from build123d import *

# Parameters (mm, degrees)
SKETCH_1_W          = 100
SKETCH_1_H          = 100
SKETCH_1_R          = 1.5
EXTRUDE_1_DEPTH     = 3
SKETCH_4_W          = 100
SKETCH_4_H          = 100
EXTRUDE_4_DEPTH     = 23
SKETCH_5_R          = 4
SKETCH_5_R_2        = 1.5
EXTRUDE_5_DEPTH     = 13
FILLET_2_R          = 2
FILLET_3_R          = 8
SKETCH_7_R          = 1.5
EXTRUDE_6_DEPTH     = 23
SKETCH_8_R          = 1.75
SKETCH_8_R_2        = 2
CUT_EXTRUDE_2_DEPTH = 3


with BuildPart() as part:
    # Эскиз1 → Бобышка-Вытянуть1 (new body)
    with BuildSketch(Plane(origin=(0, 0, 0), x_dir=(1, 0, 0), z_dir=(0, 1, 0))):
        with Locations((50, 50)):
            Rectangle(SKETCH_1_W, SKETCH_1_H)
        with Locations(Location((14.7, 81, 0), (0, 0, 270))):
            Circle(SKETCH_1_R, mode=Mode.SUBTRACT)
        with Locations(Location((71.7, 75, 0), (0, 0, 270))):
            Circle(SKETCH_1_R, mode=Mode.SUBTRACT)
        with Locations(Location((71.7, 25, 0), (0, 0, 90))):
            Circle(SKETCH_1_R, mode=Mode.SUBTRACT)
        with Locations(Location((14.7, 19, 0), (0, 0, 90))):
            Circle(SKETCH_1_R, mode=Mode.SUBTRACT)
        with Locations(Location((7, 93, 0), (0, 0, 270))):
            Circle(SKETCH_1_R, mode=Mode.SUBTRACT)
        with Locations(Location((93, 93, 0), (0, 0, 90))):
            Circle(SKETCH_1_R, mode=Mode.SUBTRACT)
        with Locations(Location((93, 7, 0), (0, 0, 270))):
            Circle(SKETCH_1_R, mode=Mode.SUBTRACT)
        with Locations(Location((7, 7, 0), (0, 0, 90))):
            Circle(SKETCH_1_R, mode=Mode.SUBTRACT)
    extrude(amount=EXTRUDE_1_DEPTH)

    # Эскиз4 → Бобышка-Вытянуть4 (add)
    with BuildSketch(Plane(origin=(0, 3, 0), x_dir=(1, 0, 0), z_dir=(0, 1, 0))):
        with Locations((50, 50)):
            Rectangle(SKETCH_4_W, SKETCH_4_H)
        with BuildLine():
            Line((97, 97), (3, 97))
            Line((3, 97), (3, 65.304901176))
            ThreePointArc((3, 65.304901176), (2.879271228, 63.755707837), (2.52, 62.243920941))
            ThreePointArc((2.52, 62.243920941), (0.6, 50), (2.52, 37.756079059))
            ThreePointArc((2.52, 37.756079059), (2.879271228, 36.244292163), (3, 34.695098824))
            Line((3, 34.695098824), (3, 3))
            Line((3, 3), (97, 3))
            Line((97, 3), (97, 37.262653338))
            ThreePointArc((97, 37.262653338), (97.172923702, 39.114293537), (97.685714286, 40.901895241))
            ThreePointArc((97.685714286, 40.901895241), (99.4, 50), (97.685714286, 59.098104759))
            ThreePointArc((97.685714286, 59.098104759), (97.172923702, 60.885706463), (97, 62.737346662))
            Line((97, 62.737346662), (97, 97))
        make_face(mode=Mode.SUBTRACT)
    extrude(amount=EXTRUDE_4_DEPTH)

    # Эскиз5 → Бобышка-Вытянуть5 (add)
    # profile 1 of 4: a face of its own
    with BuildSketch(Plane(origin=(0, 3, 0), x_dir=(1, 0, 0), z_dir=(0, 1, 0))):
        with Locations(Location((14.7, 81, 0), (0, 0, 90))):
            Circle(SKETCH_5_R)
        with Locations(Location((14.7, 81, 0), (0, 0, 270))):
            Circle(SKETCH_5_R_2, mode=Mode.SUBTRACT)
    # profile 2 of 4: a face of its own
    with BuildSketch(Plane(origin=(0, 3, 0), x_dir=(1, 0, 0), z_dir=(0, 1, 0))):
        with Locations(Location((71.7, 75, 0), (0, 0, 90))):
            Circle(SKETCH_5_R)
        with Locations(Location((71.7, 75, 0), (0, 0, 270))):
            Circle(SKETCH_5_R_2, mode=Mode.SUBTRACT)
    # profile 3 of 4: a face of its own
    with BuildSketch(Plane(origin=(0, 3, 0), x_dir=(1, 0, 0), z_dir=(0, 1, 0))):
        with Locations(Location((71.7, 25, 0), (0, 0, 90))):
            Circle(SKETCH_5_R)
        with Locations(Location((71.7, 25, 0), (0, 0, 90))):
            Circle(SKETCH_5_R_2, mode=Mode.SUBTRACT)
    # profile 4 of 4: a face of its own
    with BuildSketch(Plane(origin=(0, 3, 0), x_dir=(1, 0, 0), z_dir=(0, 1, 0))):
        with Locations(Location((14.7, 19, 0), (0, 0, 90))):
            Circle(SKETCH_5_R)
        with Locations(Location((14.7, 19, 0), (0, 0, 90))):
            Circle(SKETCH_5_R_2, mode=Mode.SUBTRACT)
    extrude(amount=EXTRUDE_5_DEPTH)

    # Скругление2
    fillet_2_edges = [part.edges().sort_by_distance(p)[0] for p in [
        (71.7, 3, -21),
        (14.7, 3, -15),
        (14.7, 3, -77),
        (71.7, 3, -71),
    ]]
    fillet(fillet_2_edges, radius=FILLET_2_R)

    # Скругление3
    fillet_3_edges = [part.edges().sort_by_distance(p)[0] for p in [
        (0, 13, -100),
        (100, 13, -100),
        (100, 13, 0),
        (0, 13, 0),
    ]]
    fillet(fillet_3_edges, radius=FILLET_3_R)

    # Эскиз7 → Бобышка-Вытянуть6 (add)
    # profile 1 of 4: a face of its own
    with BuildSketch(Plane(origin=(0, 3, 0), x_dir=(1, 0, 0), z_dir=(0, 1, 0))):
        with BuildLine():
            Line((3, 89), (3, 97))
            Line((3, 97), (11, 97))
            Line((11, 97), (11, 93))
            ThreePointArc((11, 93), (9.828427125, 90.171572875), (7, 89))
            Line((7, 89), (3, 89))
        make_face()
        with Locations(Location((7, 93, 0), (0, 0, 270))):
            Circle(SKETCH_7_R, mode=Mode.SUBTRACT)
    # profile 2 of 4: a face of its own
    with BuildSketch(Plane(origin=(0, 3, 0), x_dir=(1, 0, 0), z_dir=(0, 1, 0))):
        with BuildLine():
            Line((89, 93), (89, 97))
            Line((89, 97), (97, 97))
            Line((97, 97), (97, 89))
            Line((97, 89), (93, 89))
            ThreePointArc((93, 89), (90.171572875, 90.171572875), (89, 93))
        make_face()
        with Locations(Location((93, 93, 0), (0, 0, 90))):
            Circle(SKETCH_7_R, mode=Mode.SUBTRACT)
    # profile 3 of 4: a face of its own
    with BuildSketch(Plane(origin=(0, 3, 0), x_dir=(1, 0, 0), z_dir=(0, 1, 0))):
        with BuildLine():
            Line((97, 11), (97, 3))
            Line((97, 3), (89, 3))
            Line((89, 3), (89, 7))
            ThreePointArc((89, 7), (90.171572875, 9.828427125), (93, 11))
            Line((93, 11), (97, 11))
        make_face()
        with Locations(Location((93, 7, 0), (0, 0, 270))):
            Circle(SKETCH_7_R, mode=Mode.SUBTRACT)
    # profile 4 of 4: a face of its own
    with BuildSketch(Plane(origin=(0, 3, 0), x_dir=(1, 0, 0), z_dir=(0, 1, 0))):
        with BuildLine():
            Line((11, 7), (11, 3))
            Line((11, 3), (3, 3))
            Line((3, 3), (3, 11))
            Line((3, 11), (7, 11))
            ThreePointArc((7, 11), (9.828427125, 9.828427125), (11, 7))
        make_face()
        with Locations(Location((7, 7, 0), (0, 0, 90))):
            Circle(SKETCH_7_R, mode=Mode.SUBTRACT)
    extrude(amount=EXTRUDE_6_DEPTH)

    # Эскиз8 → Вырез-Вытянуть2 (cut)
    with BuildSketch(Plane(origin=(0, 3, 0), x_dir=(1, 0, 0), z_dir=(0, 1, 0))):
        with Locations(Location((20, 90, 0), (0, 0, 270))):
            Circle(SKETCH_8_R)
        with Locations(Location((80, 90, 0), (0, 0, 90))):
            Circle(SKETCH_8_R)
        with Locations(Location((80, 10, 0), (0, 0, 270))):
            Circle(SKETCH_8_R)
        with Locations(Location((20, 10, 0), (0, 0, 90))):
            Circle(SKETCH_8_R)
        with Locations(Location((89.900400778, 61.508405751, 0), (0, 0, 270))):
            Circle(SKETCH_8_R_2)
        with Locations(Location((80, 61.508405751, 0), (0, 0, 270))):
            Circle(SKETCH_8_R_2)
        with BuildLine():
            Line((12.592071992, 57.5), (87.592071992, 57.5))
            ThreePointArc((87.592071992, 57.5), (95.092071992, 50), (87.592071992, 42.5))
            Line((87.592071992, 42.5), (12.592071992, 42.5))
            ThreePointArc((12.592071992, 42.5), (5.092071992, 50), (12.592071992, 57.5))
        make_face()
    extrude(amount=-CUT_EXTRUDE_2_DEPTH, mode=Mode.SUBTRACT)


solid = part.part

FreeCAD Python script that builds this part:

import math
import FreeCAD as App
import Part
import Sketcher

V = App.Vector
Q = App.Units.Quantity


def edges_at(feature, points):
    """Names of the edges that pass closest to the given points."""
    edges = feature.Shape.Edges
    near = lambda p: min(range(len(edges)), key=lambda i: edges[i].distToShape(Part.Vertex(*p))[0])
    return sorted({f"Edge{near(p) + 1}" for p in points})


def add_polygon(sketch, points):
    """Adds a closed chain of lines whose ends are joined by coincident constraints."""
    first, n = sketch.GeometryCount, len(points)
    for a, b in zip(points, points[1:] + points[:1]):
        sketch.addGeometry(Part.LineSegment(App.Vector(*a, 0), App.Vector(*b, 0)), False)
    for i in range(n):
        sketch.addConstraint(Sketcher.Constraint("Coincident", first + i, 2, first + (i + 1) % n, 1))

doc = App.newDocument("Part")
body = doc.addObject("PartDesign::Body", "Body")

sketch1 = doc.addObject("Sketcher::SketchObject", "Sketch")
body.addObject(sketch1)
sketch1.AttachmentSupport = (doc.XZ_Plane, [""])
sketch1.MapMode = "FlatFace"
add_polygon(sketch1, [(0, -100), (0, 0), (100, 0), (100, -100)])
sketch1.addGeometry(Part.Circle(V(7, -7, 0), V(0, 0, 1), 1.5), False)
sketch1.addGeometry(Part.Circle(V(14.7, -19, 0), V(0, 0, 1), 1.5), False)
sketch1.addGeometry(Part.Circle(V(71.7, -25, 0), V(0, 0, 1), 1.5), False)
sketch1.addGeometry(Part.Circle(V(93, -7, 0), V(0, 0, 1), 1.5), False)
sketch1.addGeometry(Part.Circle(V(14.7, -81, 0), V(0, 0, 1), 1.5), False)
sketch1.addGeometry(Part.Circle(V(7, -93, 0), V(0, 0, 1), 1.5), False)
sketch1.addGeometry(Part.Circle(V(71.7, -75, 0), V(0, 0, 1), 1.5), False)
sketch1.addGeometry(Part.Circle(V(93, -93, 0), V(0, 0, 1), 1.5), False)
sketch1.addConstraint([
    Sketcher.Constraint("Vertical", 0),
    Sketcher.Constraint("Horizontal", 1),
    Sketcher.Constraint("Vertical", 2),
    Sketcher.Constraint("Horizontal", 3),
    Sketcher.Constraint("Coincident", 0, 2, -1, 1),
    Sketcher.Constraint("Equal", 4, 5),
    Sketcher.Constraint("Equal", 5, 6),
    Sketcher.Constraint("Equal", 6, 7),
    Sketcher.Constraint("Equal", 7, 8),
    Sketcher.Constraint("Equal", 8, 9),
    Sketcher.Constraint("Equal", 9, 10),
    Sketcher.Constraint("Equal", 10, 11),
    Sketcher.Constraint("Horizontal", 4, 3, 7, 3),
    Sketcher.Constraint("Horizontal", 9, 3, 11, 3),
    Sketcher.Constraint("Vertical", 5, 3, 8, 3),
    Sketcher.Constraint("Vertical", 4, 3, 9, 3),
    Sketcher.Constraint("Vertical", 6, 3, 10, 3),
    Sketcher.Constraint("Vertical", 7, 3, 11, 3),
    Sketcher.Constraint("Equal", 3, 0),
    Sketcher.Constraint("Diameter", 4, Q("3 mm")),
    Sketcher.Constraint("DistanceX", 1, 1, 1, 2, Q("100 mm")),
    Sketcher.Constraint("DistanceX", -1, 1, 4, 3, Q("7 mm")),
    Sketcher.Constraint("DistanceY", 4, 3, -1, 1, Q("7 mm")),
    Sketcher.Constraint("DistanceY", 5, 3, -1, 1, Q("19 mm")),
    Sketcher.Constraint("DistanceY", 6, 3, -1, 1, Q("25 mm")),
    Sketcher.Constraint("DistanceX", -1, 1, 7, 3, Q("93 mm")),
    Sketcher.Constraint("DistanceY", 8, 3, -1, 1, Q("81 mm")),
    Sketcher.Constraint("DistanceY", 9, 3, -1, 1, Q("93 mm")),
    Sketcher.Constraint("DistanceY", 10, 3, -1, 1, Q("75 mm")),
    Sketcher.Constraint("DistanceX", 5, 3, 6, 3, Q("57 mm")),
    Sketcher.Constraint("DistanceX", -1, 1, 5, 3, Q("14.7 mm")),
])
pad1 = doc.addObject("PartDesign::Pad", "Pad")
body.addObject(pad1)
pad1.Profile = sketch1
pad1.Length = 3
pad1.Reversed = True

sketch2 = doc.addObject("Sketcher::SketchObject", "Sketch001")
body.addObject(sketch2)
sketch2.AttachmentSupport = (doc.XZ_Plane, [""])
sketch2.MapMode = "FlatFace"
sketch2.AttachmentOffset = App.Placement(V(0, 0, -3), App.Rotation())
add_polygon(sketch2, [(0, -100), (0, 0), (100, 0), (100, -100)])
sketch2.addGeometry(Part.LineSegment(V(3, -97, 0), V(97, -97, 0)), False)
sketch2.addGeometry(Part.LineSegment(V(97, -97, 0), V(97, -62.737347, 0)), False)
sketch2.addGeometry(Part.ArcOfCircle(Part.Circle(V(107, -62.737347, 0), V(0, 0, 1), 10), math.radians(158.658609), math.radians(180)), False)
sketch2.addGeometry(Part.ArcOfCircle(Part.Circle(V(74.4, -50, 0), V(0, 0, 1), 25), math.radians(-21.341391), math.radians(21.341391)), False)
sketch2.addGeometry(Part.ArcOfCircle(Part.Circle(V(107, -37.262653, 0), V(0, 0, 1), 10), math.radians(-180), math.radians(-158.658609)), False)
sketch2.addGeometry(Part.LineSegment(V(97, -37.262653, 0), V(97, -3, 0)), False)
sketch2.addGeometry(Part.LineSegment(V(97, -3, 0), V(3, -3, 0)), False)
sketch2.addGeometry(Part.LineSegment(V(3, -3, 0), V(3, -34.695099, 0)), False)
sketch2.addGeometry(Part.ArcOfCircle(Part.Circle(V(-7, -34.695099, 0), V(0, 0, 1), 10), math.radians(-17.824236), math.radians(0)), False)
sketch2.addGeometry(Part.ArcOfCircle(Part.Circle(V(40.6, -50, 0), V(0, 0, 1), 40), math.radians(162.175764), math.radians(197.824236)), False)
sketch2.addGeometry(Part.ArcOfCircle(Part.Circle(V(-7, -65.304901, 0), V(0, 0, 1), 10), math.radians(0), math.radians(17.824236)), False)
sketch2.addGeometry(Part.LineSegment(V(3, -65.304901, 0), V(3, -97, 0)), False)
sketch2.addConstraint([
    Sketcher.Constraint("Coincident", 4, 2, 5, 1),
    Sketcher.Constraint("Tangent", 5, 2, 6, 2),
    Sketcher.Constraint("Tangent", 6, 1, 7, 1),
    Sketcher.Constraint("Tangent", 7, 2, 8, 2),
    Sketcher.Constraint("Tangent", 8, 1, 9, 1),
    Sketcher.Constraint("Coincident", 9, 2, 10, 1),
    Sketcher.Constraint("Coincident", 10, 2, 11, 1),
    Sketcher.Constraint("Tangent", 11, 2, 12, 2),
    Sketcher.Constraint("Tangent", 12, 1, 13, 1),
    Sketcher.Constraint("Tangent", 13, 2, 14, 2),
    Sketcher.Constraint("Tangent", 14, 1, 15, 1),
    Sketcher.Constraint("Coincident", 15, 2, 4, 1),
    Sketcher.Constraint("Vertical", 0),
    Sketcher.Constraint("Horizontal", 1),
    Sketcher.Constraint("Vertical", 2),
    Sketcher.Constraint("Horizontal", 3),
    Sketcher.Constraint("Horizontal", 4),
    Sketcher.Constraint("Vertical", 5),
    Sketcher.Constraint("Vertical", 9),
    Sketcher.Constraint("Horizontal", 10),
    Sketcher.Constraint("Vertical", 11),
    Sketcher.Constraint("Vertical", 15),
    Sketcher.Constraint("Coincident", 0, 2, -1, 1),
    Sketcher.Constraint("Equal", 6, 8),
    Sketcher.Constraint("Equal", 8, 12),
    Sketcher.Constraint("Equal", 12, 14),
    Sketcher.Constraint("Horizontal", 7, 3, 13, 3),
    Sketcher.Constraint("Vertical", 6, 3, 8, 3),
    Sketcher.Constraint("Vertical", 12, 3, 14, 3),
    Sketcher.Constraint("Equal", 3, 0),
    Sketcher.Constraint("Equal", 5, 9),
    Sketcher.Constraint("Radius", 6, Q("10 mm")),
    Sketcher.Constraint("Radius", 7, Q("25 mm")),
    Sketcher.Constraint("Radius", 13, Q("40 mm")),
    Sketcher.Constraint("DistanceX", 1, 1, 1, 2, Q("100 mm")),
    Sketcher.Constraint("DistanceX", 4, 1, 4, 2, Q("94 mm")),
    Sketcher.Constraint("DistanceX", -1, 1, 6, 3, Q("107 mm")),
    Sketcher.Constraint("DistanceY", 7, 3, -1, 1, Q("50 mm")),
    Sketcher.Constraint("DistanceY", 4, 2, -1, 1, Q("97 mm")),
    Sketcher.Constraint("DistanceX", -1, 1, 7, 3, Q("74.4 mm")),
    Sketcher.Constraint("DistanceX", -1, 1, 13, 3, Q("40.6 mm")),
])
pad2 = doc.addObject("PartDesign::Pad", "Pad001")
body.addObject(pad2)
pad2.Profile = sketch2
pad2.Length = 23
pad2.Reversed = True

sketch3 = doc.addObject("Sketcher::SketchObject", "Sketch002")
body.addObject(sketch3)
sketch3.AttachmentSupport = (doc.XZ_Plane, [""])
sketch3.MapMode = "FlatFace"
sketch3.AttachmentOffset = App.Placement(V(0, 0, -3), App.Rotation())
sketch3.addGeometry([
    Part.Circle(V(14.7, -81, 0), V(0, 0, 1), 4),
    Part.Circle(V(14.7, -81, 0), V(0, 0, 1), 1.5),
    Part.Circle(V(71.7, -75, 0), V(0, 0, 1), 4),
    Part.Circle(V(71.7, -75, 0), V(0, 0, 1), 1.5),
    Part.Circle(V(71.7, -25, 0), V(0, 0, 1), 4),
    Part.Circle(V(71.7, -25, 0), V(0, 0, 1), 1.5),
    Part.Circle(V(14.7, -19, 0), V(0, 0, 1), 4),
    Part.Circle(V(14.7, -19, 0), V(0, 0, 1), 1.5),
], False)
sketch3.addConstraint([
    Sketcher.Constraint("Coincident", 1, 3, 0, 3),
    Sketcher.Constraint("Coincident", 3, 3, 2, 3),
    Sketcher.Constraint("Coincident", 5, 3, 4, 3),
    Sketcher.Constraint("Coincident", 7, 3, 6, 3),
    Sketcher.Constraint("Equal", 0, 2),
    Sketcher.Constraint("Equal", 1, 3),
    Sketcher.Constraint("Equal", 2, 4),
    Sketcher.Constraint("Equal", 3, 5),
    Sketcher.Constraint("Equal", 4, 6),
    Sketcher.Constraint("Equal", 5, 7),
    Sketcher.Constraint("Vertical", 3, 3, 4, 3),
    Sketcher.Constraint("Vertical", 1, 3, 6, 3),
    Sketcher.Constraint("Diameter", 0, Q("8 mm")),
    Sketcher.Constraint("Diameter", 1, Q("3 mm")),
    Sketcher.Constraint("DistanceY", 0, 3, -1, 1, Q("81 mm")),
    Sketcher.Constraint("DistanceY", 2, 3, -1, 1, Q("75 mm")),
    Sketcher.Constraint("DistanceY", 4, 3, -1, 1, Q("25 mm")),
    Sketcher.Constraint("DistanceY", 6, 3, -1, 1, Q("19 mm")),
    Sketcher.Constraint("DistanceX", 0, 3, 2, 3, Q("57 mm")),
    Sketcher.Constraint("DistanceX", -1, 1, 0, 3, Q("14.7 mm")),
])
pad3 = doc.addObject("PartDesign::Pad", "Pad002")
body.addObject(pad3)
pad3.Profile = sketch3
pad3.Length = 13
pad3.Reversed = True
doc.recompute()

fillet = doc.addObject("PartDesign::Fillet", "Fillet")
body.addObject(fillet)
fillet.Base = (pad3, edges_at(pad3, [
    (71.7, 3, -21),
    (14.7, 3, -15),
    (14.7, 3, -77),
    (71.7, 3, -71),
]))
fillet.Radius = 2
doc.recompute()

fillet2 = doc.addObject("PartDesign::Fillet", "Fillet001")
body.addObject(fillet2)
fillet2.Base = (fillet, edges_at(fillet, [
    (0, 13, -100),
    (100, 13, -100),
    (100, 13, 0),
    (0, 13, 0),
]))
fillet2.Radius = 8

sketch4 = doc.addObject("Sketcher::SketchObject", "Sketch003")
body.addObject(sketch4)
sketch4.AttachmentSupport = (doc.XZ_Plane, [""])
sketch4.MapMode = "FlatFace"
sketch4.AttachmentOffset = App.Placement(V(0, 0, -3), App.Rotation())
sketch4.addGeometry([
    Part.LineSegment(V(3, -97, 0), V(3, -89, 0)),
    Part.LineSegment(V(3, -89, 0), V(7, -89, 0)),
    Part.ArcOfCircle(Part.Circle(V(7, -93, 0), V(0, 0, 1), 4), math.radians(0), math.radians(90)),
    Part.LineSegment(V(11, -93, 0), V(11, -97, 0)),
    Part.LineSegment(V(11, -97, 0), V(3, -97, 0)),
    Part.Circle(V(7, -93, 0), V(0, 0, 1), 1.5),
    Part.LineSegment(V(89, -97, 0), V(89, -93, 0)),
    Part.ArcOfCircle(Part.Circle(V(93, -93, 0), V(0, 0, 1), 4), math.radians(90), math.radians(180)),
    Part.LineSegment(V(93, -89, 0), V(97, -89, 0)),
    Part.LineSegment(V(97, -89, 0), V(97, -97, 0)),
    Part.LineSegment(V(97, -97, 0), V(89, -97, 0)),
    Part.Circle(V(93, -93, 0), V(0, 0, 1), 1.5),
    Part.LineSegment(V(97, -3, 0), V(97, -11, 0)),
    Part.LineSegment(V(97, -11, 0), V(93, -11, 0)),
    Part.ArcOfCircle(Part.Circle(V(93, -7, 0), V(0, 0, 1), 4), math.radians(180), math.radians(270)),
    Part.LineSegment(V(89, -7, 0), V(89, -3, 0)),
    Part.LineSegment(V(89, -3, 0), V(97, -3, 0)),
    Part.Circle(V(93, -7, 0), V(0, 0, 1), 1.5),
    Part.LineSegment(V(11, -3, 0), V(11, -7, 0)),
    Part.ArcOfCircle(Part.Circle(V(7, -7, 0), V(0, 0, 1), 4), math.radians(-90), math.radians(0)),
    Part.LineSegment(V(7, -11, 0), V(3, -11, 0)),
    Part.LineSegment(V(3, -11, 0), V(3, -3, 0)),
    Part.LineSegment(V(3, -3, 0), V(11, -3, 0)),
    Part.Circle(V(7, -7, 0), V(0, 0, 1), 1.5),
], False)
sketch4.addConstraint([
    Sketcher.Constraint("Coincident", 0, 2, 1, 1),
    Sketcher.Constraint("Tangent", 1, 2, 2, 2),
    Sketcher.Constraint("Tangent", 2, 1, 3, 1),
    Sketcher.Constraint("Coincident", 3, 2, 4, 1),
    Sketcher.Constraint("Coincident", 4, 2, 0, 1),
    Sketcher.Constraint("Tangent", 6, 2, 7, 2),
    Sketcher.Constraint("Tangent", 7, 1, 8, 1),
    Sketcher.Constraint("Coincident", 8, 2, 9, 1),
    Sketcher.Constraint("Coincident", 9, 2, 10, 1),
    Sketcher.Constraint("Coincident", 10, 2, 6, 1),
    Sketcher.Constraint("Coincident", 12, 2, 13, 1),
    Sketcher.Constraint("Tangent", 13, 2, 14, 2),
    Sketcher.Constraint("Tangent", 14, 1, 15, 1),
    Sketcher.Constraint("Coincident", 15, 2, 16, 1),
    Sketcher.Constraint("Coincident", 16, 2, 12, 1),
    Sketcher.Constraint("Tangent", 18, 2, 19, 2),
    Sketcher.Constraint("Tangent", 19, 1, 20, 1),
    Sketcher.Constraint("Coincident", 20, 2, 21, 1),
    Sketcher.Constraint("Coincident", 21, 2, 22, 1),
    Sketcher.Constraint("Coincident", 22, 2, 18, 1),
    Sketcher.Constraint("Vertical", 0),
    Sketcher.Constraint("Horizontal", 1),
    Sketcher.Constraint("Vertical", 3),
    Sketcher.Constraint("Horizontal", 4),
    Sketcher.Constraint("Vertical", 6),
    Sketcher.Constraint("Horizontal", 8),
    Sketcher.Constraint("Vertical", 9),
    Sketcher.Constraint("Horizontal", 10),
    Sketcher.Constraint("Vertical", 12),
    Sketcher.Constraint("Horizontal", 13),
    Sketcher.Constraint("Vertical", 15),
    Sketcher.Constraint("Horizontal", 16),
    Sketcher.Constraint("Vertical", 18),
    Sketcher.Constraint("Horizontal", 20),
    Sketcher.Constraint("Vertical", 21),
    Sketcher.Constraint("Horizontal", 22),
    Sketcher.Constraint("Coincident", 5, 3, 2, 3),
    Sketcher.Constraint("Coincident", 11, 3, 7, 3),
    Sketcher.Constraint("Coincident", 17, 3, 14, 3),
    Sketcher.Constraint("Coincident", 23, 3, 19, 3),
    Sketcher.Constraint("Equal", 2, 7),
    Sketcher.Constraint("Equal", 5, 11),
    Sketcher.Constraint("Equal", 7, 14),
    Sketcher.Constraint("Equal", 11, 17),
    Sketcher.Constraint("Equal", 14, 19),
    Sketcher.Constraint("Equal", 17, 23),
    Sketcher.Constraint("Horizontal", 5, 3, 7, 3),
    Sketcher.Constraint("Horizontal", 17, 3, 19, 3),
    Sketcher.Constraint("Horizontal", 4, 2, 9, 2),
    Sketcher.Constraint("Horizontal", 16, 2, 21, 2),
    Sketcher.Constraint("Vertical", 11, 3, 14, 3),
    Sketcher.Constraint("Vertical", 5, 3, 19, 3),
    Sketcher.Constraint("Vertical", 9, 2, 12, 2),
    Sketcher.Constraint("Vertical", 4, 2, 20, 2),
    Sketcher.Constraint("Equal", 1, 8),
    Sketcher.Constraint("Equal", 22, 0),
    Sketcher.Constraint("Equal", 9, 12),
    Sketcher.Constraint("Diameter", 5, Q("3 mm")),
    Sketcher.Constraint("Radius", 2, Q("4 mm")),
    Sketcher.Constraint("DistanceX", 1, 1, 1, 2, Q("4 mm")),
    Sketcher.Constraint("DistanceX", -1, 1, 2, 3, Q("7 mm")),
    Sketcher.Constraint("DistanceY", 2, 3, -1, 1, Q("93 mm")),
    Sketcher.Constraint("DistanceX", -1, 1, 7, 3, Q("93 mm")),
    Sketcher.Constraint("DistanceY", 14, 3, -1, 1, Q("7 mm")),
])
pad4 = doc.addObject("PartDesign::Pad", "Pad003")
body.addObject(pad4)
pad4.Profile = sketch4
pad4.Length = 23
pad4.Reversed = True

sketch5 = doc.addObject("Sketcher::SketchObject", "Sketch004")
body.addObject(sketch5)
sketch5.AttachmentSupport = (doc.XZ_Plane, [""])
sketch5.MapMode = "FlatFace"
sketch5.AttachmentOffset = App.Placement(V(0, 0, -3), App.Rotation())
sketch5.addGeometry([
    Part.Circle(V(20, -90, 0), V(0, 0, 1), 1.75),
    Part.Circle(V(80, -90, 0), V(0, 0, 1), 1.75),
    Part.Circle(V(80, -10, 0), V(0, 0, 1), 1.75),
    Part.Circle(V(20, -10, 0), V(0, 0, 1), 1.75),
    Part.Circle(V(89.900401, -61.508406, 0), V(0, 0, 1), 2),
    Part.Circle(V(80, -61.508406, 0), V(0, 0, 1), 2),
    Part.LineSegment(V(87.592072, -57.5, 0), V(12.592072, -57.5, 0)),
    Part.ArcOfCircle(Part.Circle(V(12.592072, -50, 0), V(0, 0, 1), 7.5), math.radians(90), math.radians(270)),
    Part.LineSegment(V(12.592072, -42.5, 0), V(87.592072, -42.5, 0)),
    Part.ArcOfCircle(Part.Circle(V(87.592072, -50, 0), V(0, 0, 1), 7.5), math.radians(-90), math.radians(90)),
], False)
sketch5.addConstraint([
    Sketcher.Constraint("Tangent", 6, 2, 7, 2),
    Sketcher.Constraint("Tangent", 7, 1, 8, 1),
    Sketcher.Constraint("Tangent", 8, 2, 9, 2),
    Sketcher.Constraint("Tangent", 9, 1, 6, 1),
    Sketcher.Constraint("Horizontal", 6),
    Sketcher.Constraint("Horizontal", 8),
    Sketcher.Constraint("Equal", 0, 1),
    Sketcher.Constraint("Equal", 1, 2),
    Sketcher.Constraint("Equal", 2, 3),
    Sketcher.Constraint("Equal", 4, 5),
    Sketcher.Constraint("Horizontal", 0, 3, 1, 3),
    Sketcher.Constraint("Horizontal", 2, 3, 3, 3),
    Sketcher.Constraint("Horizontal", 4, 3, 5, 3),
    Sketcher.Constraint("Vertical", 1, 3, 2, 3),
    Sketcher.Constraint("Vertical", 0, 3, 3, 3),
    Sketcher.Constraint("Vertical", 2, 3, 5, 3),
    Sketcher.Constraint("Diameter", 4, Q("4 mm")),
    Sketcher.Constraint("Diameter", 0, Q("3.5 mm")),
    Sketcher.Constraint("Radius", 7, Q("7.5 mm")),
    Sketcher.Constraint("DistanceX", 6, 2, 6, 1, Q("75 mm")),
    Sketcher.Constraint("DistanceX", -1, 1, 0, 3, Q("20 mm")),
    Sketcher.Constraint("DistanceY", 0, 3, -1, 1, Q("90 mm")),
    Sketcher.Constraint("DistanceX", -1, 1, 1, 3, Q("80 mm")),
    Sketcher.Constraint("DistanceY", 2, 3, -1, 1, Q("10 mm")),
    Sketcher.Constraint("DistanceY", 7, 3, -1, 1, Q("50 mm")),
    Sketcher.Constraint("DistanceX", -1, 1, 4, 3, Q("89.900401 mm")),
    Sketcher.Constraint("DistanceX", -1, 1, 7, 3, Q("12.592072 mm")),
    Sketcher.Constraint("DistanceY", 4, 3, -1, 1, Q("61.508406 mm")),
])
pocket1 = doc.addObject("PartDesign::Pocket", "Pocket")
body.addObject(pocket1)
pocket1.Profile = sketch5
pocket1.Length = 3
pocket1.Reversed = True

doc.recompute()
